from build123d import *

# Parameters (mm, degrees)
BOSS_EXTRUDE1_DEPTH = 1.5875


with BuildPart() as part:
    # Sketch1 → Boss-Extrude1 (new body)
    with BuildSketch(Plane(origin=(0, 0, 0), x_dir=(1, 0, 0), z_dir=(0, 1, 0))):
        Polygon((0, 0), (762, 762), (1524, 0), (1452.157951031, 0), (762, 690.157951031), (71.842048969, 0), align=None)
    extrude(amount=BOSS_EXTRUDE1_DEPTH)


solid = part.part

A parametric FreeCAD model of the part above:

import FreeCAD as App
import Part
import Sketcher
Q = App.Units.Quantity


def add_polygon(sketch, points):
    """Adds a closed chain of lines whose ends are joined by coincident constraints."""
    first, n = sketch.GeometryCount, len(points)
    for a, b in zip(points, points[1:] + points[:1]):
        sketch.addGeometry(Part.LineSegment(App.Vector(*a, 0), App.Vector(*b, 0)), False)
    for i in range(n):
        sketch.addConstraint(Sketcher.Constraint("Coincident", first + i, 2, first + (i + 1) % n, 1))

doc = App.newDocument("Part")
params = doc.addObject("Spreadsheet::Sheet", "Params")
for row, (alias, value) in enumerate([
    ("pad1_length", "0.0625 in"),
], start=1):
    params.set(f"A{row}", alias)
    params.set(f"B{row}", "=" + value)
    params.setAlias(f"B{row}", alias)

body = doc.addObject("PartDesign::Body", "Body")

# Sketch on XZ plane
sketch1 = body.newObject("Sketcher::SketchObject", "Sketch")
sketch1.AttachmentSupport = (doc.getObject("XZ_Plane"), [""])
sketch1.MapMode = "FlatFace"
add_polygon(sketch1, [(762, -762), (0, 0), (71.842049, 0), (762, -690.157951), (1452.157951, 0), (1524, 0)])  # lines 0-5
sketch1.addConstraint(Sketcher.Constraint("Horizontal", 1))
sketch1.addConstraint(Sketcher.Constraint("Horizontal", 4))
sketch1.addConstraint(Sketcher.Constraint("Coincident", 0, 2, -1, 1))
sketch1.addConstraint(Sketcher.Constraint("PointOnObject", 3, 2, -1))
sketch1.addConstraint(Sketcher.Constraint("Parallel", 0, 2))
sketch1.addConstraint(Sketcher.Constraint("Perpendicular", 2, 3))
sketch1.addConstraint(Sketcher.Constraint("Parallel", 3, 5))
sketch1.addConstraint(Sketcher.Constraint("Vertical", 2, 2, 5, 2))
sketch1.addConstraint(Sketcher.Constraint("Equal", 1, 4))
sketch1.addConstraint(Sketcher.Constraint("DistanceX", -1, 1, 2, 2, Q("30 in")))
sketch1.addConstraint(Sketcher.Constraint("DistanceX", 1, 1, 1, 2, 71.842049))
pad1 = body.newObject("PartDesign::Pad", "Pad")
pad1.Profile = sketch1
pad1.setExpression("Length", "Params.pad1_length")
pad1.Reversed = True

doc.recompute()
